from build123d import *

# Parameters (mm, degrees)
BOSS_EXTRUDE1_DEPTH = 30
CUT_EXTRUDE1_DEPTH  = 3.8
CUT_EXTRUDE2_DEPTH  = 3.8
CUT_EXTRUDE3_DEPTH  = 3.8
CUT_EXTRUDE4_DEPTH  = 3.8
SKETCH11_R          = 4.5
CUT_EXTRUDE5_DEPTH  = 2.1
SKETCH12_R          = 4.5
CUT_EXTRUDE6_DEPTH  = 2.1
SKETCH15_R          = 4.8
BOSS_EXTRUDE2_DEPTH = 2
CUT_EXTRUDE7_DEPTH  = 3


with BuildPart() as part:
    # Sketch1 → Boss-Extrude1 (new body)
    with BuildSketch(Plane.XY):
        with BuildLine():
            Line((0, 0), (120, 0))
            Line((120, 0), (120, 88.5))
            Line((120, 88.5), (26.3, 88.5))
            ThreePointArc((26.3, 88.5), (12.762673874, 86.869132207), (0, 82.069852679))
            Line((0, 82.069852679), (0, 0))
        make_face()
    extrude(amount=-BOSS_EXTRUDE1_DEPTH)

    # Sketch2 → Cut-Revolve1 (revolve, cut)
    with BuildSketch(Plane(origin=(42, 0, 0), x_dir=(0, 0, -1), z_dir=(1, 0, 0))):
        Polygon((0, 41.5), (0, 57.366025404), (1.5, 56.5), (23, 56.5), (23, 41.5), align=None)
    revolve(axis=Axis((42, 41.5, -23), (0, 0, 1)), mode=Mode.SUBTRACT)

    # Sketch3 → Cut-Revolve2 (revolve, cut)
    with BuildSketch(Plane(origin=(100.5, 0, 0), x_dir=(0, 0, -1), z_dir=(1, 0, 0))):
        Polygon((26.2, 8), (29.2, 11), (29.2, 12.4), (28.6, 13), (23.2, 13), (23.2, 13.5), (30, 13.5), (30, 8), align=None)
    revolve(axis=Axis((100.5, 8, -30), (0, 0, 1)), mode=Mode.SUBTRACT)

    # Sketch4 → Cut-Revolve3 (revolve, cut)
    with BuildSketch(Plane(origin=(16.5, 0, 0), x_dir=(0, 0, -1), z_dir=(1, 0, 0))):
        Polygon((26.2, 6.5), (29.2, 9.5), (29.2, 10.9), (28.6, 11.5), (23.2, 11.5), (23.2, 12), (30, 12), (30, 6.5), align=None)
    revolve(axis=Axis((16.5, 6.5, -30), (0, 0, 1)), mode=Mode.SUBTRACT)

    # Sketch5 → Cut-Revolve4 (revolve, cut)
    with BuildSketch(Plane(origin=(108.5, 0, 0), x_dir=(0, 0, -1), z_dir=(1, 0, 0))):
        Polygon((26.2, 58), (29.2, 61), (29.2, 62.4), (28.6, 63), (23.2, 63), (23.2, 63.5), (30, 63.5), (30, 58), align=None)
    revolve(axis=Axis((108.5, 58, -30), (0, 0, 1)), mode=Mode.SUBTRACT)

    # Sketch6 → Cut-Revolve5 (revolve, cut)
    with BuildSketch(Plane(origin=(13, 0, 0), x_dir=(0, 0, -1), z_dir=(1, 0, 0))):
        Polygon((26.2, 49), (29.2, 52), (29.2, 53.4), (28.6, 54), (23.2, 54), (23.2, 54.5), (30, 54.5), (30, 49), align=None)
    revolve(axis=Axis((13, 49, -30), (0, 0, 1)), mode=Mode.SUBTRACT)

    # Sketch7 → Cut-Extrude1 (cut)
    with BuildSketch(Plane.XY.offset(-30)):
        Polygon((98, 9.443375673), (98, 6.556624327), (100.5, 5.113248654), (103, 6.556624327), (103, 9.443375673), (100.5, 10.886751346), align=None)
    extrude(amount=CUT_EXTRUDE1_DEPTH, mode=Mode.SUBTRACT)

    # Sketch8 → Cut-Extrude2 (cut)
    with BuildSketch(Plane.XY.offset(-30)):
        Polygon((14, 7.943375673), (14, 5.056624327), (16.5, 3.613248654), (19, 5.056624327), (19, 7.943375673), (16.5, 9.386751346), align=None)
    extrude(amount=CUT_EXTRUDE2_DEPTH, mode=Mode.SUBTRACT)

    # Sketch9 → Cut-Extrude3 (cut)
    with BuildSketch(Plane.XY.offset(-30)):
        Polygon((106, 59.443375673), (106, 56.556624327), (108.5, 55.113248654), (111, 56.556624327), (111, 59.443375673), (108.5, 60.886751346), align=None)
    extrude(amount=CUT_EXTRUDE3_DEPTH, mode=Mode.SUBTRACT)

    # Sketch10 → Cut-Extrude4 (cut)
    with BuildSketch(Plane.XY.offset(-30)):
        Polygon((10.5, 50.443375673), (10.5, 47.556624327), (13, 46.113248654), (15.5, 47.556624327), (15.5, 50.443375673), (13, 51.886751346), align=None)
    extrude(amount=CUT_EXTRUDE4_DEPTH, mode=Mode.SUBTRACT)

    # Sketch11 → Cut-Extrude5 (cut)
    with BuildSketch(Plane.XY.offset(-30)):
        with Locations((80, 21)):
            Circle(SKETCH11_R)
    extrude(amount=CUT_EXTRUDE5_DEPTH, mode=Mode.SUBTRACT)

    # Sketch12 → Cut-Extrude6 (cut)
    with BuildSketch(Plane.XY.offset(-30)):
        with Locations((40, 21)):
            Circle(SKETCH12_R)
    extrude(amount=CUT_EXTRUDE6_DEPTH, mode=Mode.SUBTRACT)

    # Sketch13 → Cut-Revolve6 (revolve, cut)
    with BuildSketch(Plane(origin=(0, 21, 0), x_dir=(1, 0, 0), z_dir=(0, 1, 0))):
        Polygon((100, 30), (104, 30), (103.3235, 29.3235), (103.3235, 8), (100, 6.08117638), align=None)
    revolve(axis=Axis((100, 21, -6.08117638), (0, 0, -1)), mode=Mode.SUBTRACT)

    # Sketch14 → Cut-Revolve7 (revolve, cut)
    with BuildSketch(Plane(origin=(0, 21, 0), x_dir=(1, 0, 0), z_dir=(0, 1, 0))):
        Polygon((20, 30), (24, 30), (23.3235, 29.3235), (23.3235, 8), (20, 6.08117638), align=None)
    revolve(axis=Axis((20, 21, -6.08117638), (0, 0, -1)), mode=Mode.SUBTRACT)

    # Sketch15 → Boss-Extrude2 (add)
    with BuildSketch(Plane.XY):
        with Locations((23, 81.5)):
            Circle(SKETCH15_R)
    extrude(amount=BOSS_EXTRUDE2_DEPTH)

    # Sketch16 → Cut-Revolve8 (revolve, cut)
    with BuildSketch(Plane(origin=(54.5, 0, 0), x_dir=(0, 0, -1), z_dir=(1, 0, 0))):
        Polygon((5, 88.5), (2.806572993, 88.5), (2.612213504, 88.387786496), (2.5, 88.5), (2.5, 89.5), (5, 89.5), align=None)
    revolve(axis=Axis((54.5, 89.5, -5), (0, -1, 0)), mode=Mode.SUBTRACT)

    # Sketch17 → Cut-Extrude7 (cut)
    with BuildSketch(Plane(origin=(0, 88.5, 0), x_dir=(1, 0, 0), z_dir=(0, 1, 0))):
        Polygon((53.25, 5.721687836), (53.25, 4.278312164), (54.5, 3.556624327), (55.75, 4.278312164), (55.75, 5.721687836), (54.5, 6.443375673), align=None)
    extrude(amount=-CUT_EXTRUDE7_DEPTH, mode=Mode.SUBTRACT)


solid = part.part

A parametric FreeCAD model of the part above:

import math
import FreeCAD as App
import Part
import Sketcher
from FreeCAD import Vector
Q = App.Units.Quantity

doc = App.newDocument("Part")
params = doc.addObject("Spreadsheet::Sheet", "Params")
for row, (alias, value) in enumerate([
    ("sketch1_radius", "57 mm"),
    ("sketch1_width", "120 mm"),
    ("sketch1_width2", "93.7 mm"),
    ("sketch1_height", "88.5 mm"),
    ("pad1_length", "30 mm"),
    ("sketch2_width", "15 mm"),
    ("sketch2_height", "23 mm"),
    ("sketch2_height2", "21.5 mm"),
    ("groove_angle", "360 deg"),
    ("sketch3_width", "5.5 mm"),
    ("sketch3_width2", "0.5 mm"),
    ("sketch3_width3", "1.4 mm"),
    ("sketch3_height", "3.8 mm"),
    ("sketch3_height2", "6.8 mm"),
    ("groove2_angle", "360 deg"),
    ("sketch4_width", "5.5 mm"),
    ("sketch4_width2", "0.5 mm"),
    ("sketch4_width3", "1.4 mm"),
    ("sketch4_height", "3.8 mm"),
    ("sketch4_height2", "6.8 mm"),
    ("groove3_angle", "360 deg"),
    ("sketch5_width", "5.5 mm"),
    ("sketch5_width2", "0.5 mm"),
    ("sketch5_width3", "1.4 mm"),
    ("sketch5_height", "3.8 mm"),
    ("sketch5_height2", "6.8 mm"),
    ("groove4_angle", "360 deg"),
    ("sketch6_width", "5.5 mm"),
    ("sketch6_width2", "0.5 mm"),
    ("sketch6_width3", "1.4 mm"),
    ("sketch6_height", "3.8 mm"),
    ("sketch6_height2", "6.8 mm"),
    ("groove5_angle", "360 deg"),
    ("pocket1_length", "3.8 mm"),
    ("pocket2_length", "3.8 mm"),
    ("pocket3_length", "3.8 mm"),
    ("pocket4_length", "3.8 mm"),
    ("sketch11_diameter", "9 mm"),
    ("pocket5_length", "2.1 mm"),
    ("sketch12_diameter", "9 mm"),
    ("pocket6_length", "2.1 mm"),
    ("sketch13_width", "4 mm"),
    ("groove6_angle", "360 deg"),
    ("sketch14_width", "4 mm"),
    ("groove7_angle", "360 deg"),
    ("sketch15_diameter", "9.6 mm"),
    ("pad2_length", "2 mm"),
    ("sketch16_width", "1 mm"),
    ("sketch16_height", "2.5 mm"),
    ("groove8_angle", "360 deg"),
    ("pocket7_length", "3 mm"),
], start=1):
    params.set(f"A{row}", alias)
    params.set(f"B{row}", "=" + value)
    params.setAlias(f"B{row}", alias)

body = doc.addObject("PartDesign::Body", "Body")

# Sketch on XY plane
sketch1 = body.newObject("Sketcher::SketchObject", "Sketch")
sketch1.AttachmentSupport = (doc.getObject("XY_Plane"), [""])
sketch1.MapMode = "FlatFace"
sketch1.addGeometry([
    Part.LineSegment(Vector(0, 0, 0), Vector(120, 0, 0)),  # 0
    Part.LineSegment(Vector(120, 0, 0), Vector(120, 88, 0)),  # 1
    Part.LineSegment(Vector(120, 88, 0), Vector(26, 88, 0)),  # 2
    Part.ArcOfCircle(Part.Circle(Vector(26, 32, 0), Vector(0, 0, 1), 57), math.radians(90), math.radians(117)),  # 3
    Part.LineSegment(Vector(0, 82, 0), Vector(0, 0, 0)),  # 4
], False)
sketch1.addConstraint([
    Sketcher.Constraint("Coincident", 0, 2, 1, 1),
    Sketcher.Constraint("Coincident", 1, 2, 2, 1),
    Sketcher.Constraint("Tangent", 2, 2, 3, 1),
    Sketcher.Constraint("Coincident", 3, 2, 4, 1),
    Sketcher.Constraint("Coincident", 4, 2, 0, 1),
    Sketcher.Constraint("Horizontal", 0),
    Sketcher.Constraint("Vertical", 1),
    Sketcher.Constraint("Horizontal", 2),
    Sketcher.Constraint("Vertical", 4),
    Sketcher.Constraint("Coincident", 4, 2, -1, 1),
    Sketcher.Constraint("Radius", 3, Q("57 mm")),
    Sketcher.Constraint("DistanceX", 0, 1, 0, 2, Q("120 mm")),
    Sketcher.Constraint("DistanceX", 2, 2, 2, 1, Q("93.7 mm")),
    Sketcher.Constraint("DistanceY", 1, 1, 1, 2, Q("88.5 mm")),
])
sketch1.setExpression("Constraints[10]", "Params.sketch1_radius")
sketch1.setExpression("Constraints[11]", "Params.sketch1_width")
sketch1.setExpression("Constraints[12]", "Params.sketch1_width2")
sketch1.setExpression("Constraints[13]", "Params.sketch1_height")
pad1 = body.newObject("PartDesign::Pad", "Pad")
pad1.Profile = sketch1
pad1.setExpression("Length", "Params.pad1_length")
pad1.Reversed = True

# Sketch on YZ plane
sketch2 = body.newObject("Sketcher::SketchObject", "Sketch001")
sketch2.AttachmentSupport = (doc.getObject("YZ_Plane"), [""])
sketch2.MapMode = "FlatFace"
sketch2.AttachmentOffset = App.Placement(Vector(0, 0, 42), App.Rotation())
sketch2.addGeometry([
    Part.LineSegment(Vector(57.4, 0, 0), Vector(41.5, 0, 0)),  # 0
    Part.LineSegment(Vector(41.5, 0, 0), Vector(41.5, -23, 0)),  # 1
    Part.LineSegment(Vector(41.5, -23, 0), Vector(56.5, -23, 0)),  # 2
    Part.LineSegment(Vector(56.5, -23, 0), Vector(56.5, -1.5, 0)),  # 3
    Part.LineSegment(Vector(56.5, -1.5, 0), Vector(57.4, 0, 0)),  # 4
], False)
sketch2.addGeometry(Part.LineSegment(Vector(41.5, -23, 0), Vector(41.5, 0, 0)), True)  # axis
sketch2.addConstraint([
    Sketcher.Constraint("Coincident", 0, 2, 1, 1),
    Sketcher.Constraint("Coincident", 1, 2, 2, 1),
    Sketcher.Constraint("Coincident", 2, 2, 3, 1),
    Sketcher.Constraint("Coincident", 3, 2, 4, 1),
    Sketcher.Constraint("Coincident", 4, 2, 0, 1),
    Sketcher.Constraint("Horizontal", 0),
    Sketcher.Constraint("Vertical", 1),
    Sketcher.Constraint("Horizontal", 2),
    Sketcher.Constraint("Vertical", 3),
    Sketcher.Constraint("Vertical", 5),
    Sketcher.Constraint("Coincident", 5, 1, 1, 2),
    Sketcher.Constraint("PointOnObject", 0, 2, -1),
    Sketcher.Constraint("PointOnObject", 5, 2, -1),
    Sketcher.Constraint("DistanceX", 2, 1, 2, 2, Q("15 mm")),
    Sketcher.Constraint("DistanceY", 1, 2, 1, 1, Q("23 mm")),
    Sketcher.Constraint("Angle", 4, Q("60 deg")),
    Sketcher.Constraint("DistanceY", 3, 1, 3, 2, Q("21.5 mm")),
    Sketcher.Constraint("DistanceX", -1, 1, 0, 2, Q("41.5 mm")),
])
sketch2.setExpression("Constraints[13]", "Params.sketch2_width")
sketch2.setExpression("Constraints[14]", "Params.sketch2_height")
sketch2.setExpression("Constraints[16]", "Params.sketch2_height2")
groove = body.newObject("PartDesign::Groove", "Groove")
groove.Profile = sketch2
groove.ReferenceAxis = (sketch2, ["Axis0"])
groove.setExpression("Angle", "Params.groove_angle")

# Sketch on YZ plane
sketch3 = body.newObject("Sketcher::SketchObject", "Sketch002")
sketch3.AttachmentSupport = (doc.getObject("YZ_Plane"), [""])
sketch3.MapMode = "FlatFace"
sketch3.AttachmentOffset = App.Placement(Vector(0, 0, 100.5), App.Rotation())
sketch3.addGeometry([
    Part.LineSegment(Vector(11, -29.2, 0), Vector(8, -26.2, 0)),  # 0
    Part.LineSegment(Vector(8, -26.2, 0), Vector(8, -30, 0)),  # 1
    Part.LineSegment(Vector(8, -30, 0), Vector(13.5, -30, 0)),  # 2
    Part.LineSegment(Vector(13.5, -30, 0), Vector(13.5, -23.2, 0)),  # 3
    Part.LineSegment(Vector(13.5, -23.2, 0), Vector(13, -23.2, 0)),  # 4
    Part.LineSegment(Vector(13, -23.2, 0), Vector(13, -28.6, 0)),  # 5
    Part.LineSegment(Vector(13, -28.6, 0), Vector(12.4, -29.2, 0)),  # 6
    Part.LineSegment(Vector(12.4, -29.2, 0), Vector(11, -29.2, 0)),  # 7
], False)
sketch3.addGeometry(Part.LineSegment(Vector(8, -30, 0), Vector(8, -23.2, 0)), True)  # axis
sketch3.addConstraint([
    Sketcher.Constraint("Coincident", 0, 2, 1, 1),
    Sketcher.Constraint("Coincident", 1, 2, 2, 1),
    Sketcher.Constraint("Coincident", 2, 2, 3, 1),
    Sketcher.Constraint("Coincident", 3, 2, 4, 1),
    Sketcher.Constraint("Coincident", 4, 2, 5, 1),
    Sketcher.Constraint("Coincident", 5, 2, 6, 1),
    Sketcher.Constraint("Coincident", 6, 2, 7, 1),
    Sketcher.Constraint("Coincident", 7, 2, 0, 1),
    Sketcher.Constraint("Vertical", 1),
    Sketcher.Constraint("Horizontal", 2),
    Sketcher.Constraint("Vertical", 3),
    Sketcher.Constraint("Horizontal", 4),
    Sketcher.Constraint("Vertical", 5),
    Sketcher.Constraint("Horizontal", 7),
    Sketcher.Constraint("Vertical", 8),
    Sketcher.Constraint("Coincident", 8, 1, 1, 2),
    Sketcher.Constraint("Perpendicular", 0, 6),
    Sketcher.Constraint("Horizontal", 4, 2, 8, 2),
    Sketcher.Constraint("Angle", 0, Q("135 deg")),
    Sketcher.Constraint("DistanceX", 2, 1, 2, 2, Q("5.5 mm")),
    Sketcher.Constraint("DistanceX", 4, 2, 4, 1, Q("0.5 mm")),
    Sketcher.Constraint("DistanceX", 7, 2, 7, 1, Q("1.4 mm")),
    Sketcher.Constraint("DistanceY", 1, 2, 1, 1, Q("3.8 mm")),
    Sketcher.Constraint("DistanceY", 3, 1, 3, 2, Q("6.8 mm")),
    Sketcher.Constraint("DistanceY", 5, 2, 5, 1, Q("5.4 mm")),
    Sketcher.Constraint("DistanceX", -1, 1, 0, 2, Q("8 mm")),
    Sketcher.Constraint("DistanceY", 1, 2, -1, 1, Q("30 mm")),
])
sketch3.setExpression("Constraints[19]", "Params.sketch3_width")
sketch3.setExpression("Constraints[20]", "Params.sketch3_width2")
sketch3.setExpression("Constraints[21]", "Params.sketch3_width3")
sketch3.setExpression("Constraints[22]", "Params.sketch3_height")
sketch3.setExpression("Constraints[23]", "Params.sketch3_height2")
groove2 = body.newObject("PartDesign::Groove", "Groove001")
groove2.Profile = sketch3
groove2.ReferenceAxis = (sketch3, ["Axis0"])
groove2.setExpression("Angle", "Params.groove2_angle")

# Sketch on YZ plane
sketch4 = body.newObject("Sketcher::SketchObject", "Sketch003")
sketch4.AttachmentSupport = (doc.getObject("YZ_Plane"), [""])
sketch4.MapMode = "FlatFace"
sketch4.AttachmentOffset = App.Placement(Vector(0, 0, 16.5), App.Rotation())
sketch4.addGeometry([
    Part.LineSegment(Vector(9.5, -29.2, 0), Vector(6.5, -26.2, 0)),  # 0
    Part.LineSegment(Vector(6.5, -26.2, 0), Vector(6.5, -30, 0)),  # 1
    Part.LineSegment(Vector(6.5, -30, 0), Vector(12, -30, 0)),  # 2
    Part.LineSegment(Vector(12, -30, 0), Vector(12, -23.2, 0)),  # 3
    Part.LineSegment(Vector(12, -23.2, 0), Vector(11.5, -23.2, 0)),  # 4
    Part.LineSegment(Vector(11.5, -23.2, 0), Vector(11.5, -28.6, 0)),  # 5
    Part.LineSegment(Vector(11.5, -28.6, 0), Vector(10.9, -29.2, 0)),  # 6
    Part.LineSegment(Vector(10.9, -29.2, 0), Vector(9.5, -29.2, 0)),  # 7
], False)
sketch4.addGeometry(Part.LineSegment(Vector(6.5, -30, 0), Vector(6.5, -23.2, 0)), True)  # axis
sketch4.addConstraint([
    Sketcher.Constraint("Coincident", 0, 2, 1, 1),
    Sketcher.Constraint("Coincident", 1, 2, 2, 1),
    Sketcher.Constraint("Coincident", 2, 2, 3, 1),
    Sketcher.Constraint("Coincident", 3, 2, 4, 1),
    Sketcher.Constraint("Coincident", 4, 2, 5, 1),
    Sketcher.Constraint("Coincident", 5, 2, 6, 1),
    Sketcher.Constraint("Coincident", 6, 2, 7, 1),
    Sketcher.Constraint("Coincident", 7, 2, 0, 1),
    Sketcher.Constraint("Vertical", 1),
    Sketcher.Constraint("Horizontal", 2),
    Sketcher.Constraint("Vertical", 3),
    Sketcher.Constraint("Horizontal", 4),
    Sketcher.Constraint("Vertical", 5),
    Sketcher.Constraint("Horizontal", 7),
    Sketcher.Constraint("Vertical", 8),
    Sketcher.Constraint("Coincident", 8, 1, 1, 2),
    Sketcher.Constraint("Perpendicular", 0, 6),
    Sketcher.Constraint("Horizontal", 4, 2, 8, 2),
    Sketcher.Constraint("Angle", 0, Q("135 deg")),
    Sketcher.Constraint("DistanceX", 2, 1, 2, 2, Q("5.5 mm")),
    Sketcher.Constraint("DistanceX", 4, 2, 4, 1, Q("0.5 mm")),
    Sketcher.Constraint("DistanceX", 7, 2, 7, 1, Q("1.4 mm")),
    Sketcher.Constraint("DistanceY", 1, 2, 1, 1, Q("3.8 mm")),
    Sketcher.Constraint("DistanceY", 3, 1, 3, 2, Q("6.8 mm")),
    Sketcher.Constraint("DistanceY", 5, 2, 5, 1, Q("5.4 mm")),
    Sketcher.Constraint("DistanceY", 1, 2, -1, 1, Q("30 mm")),
    Sketcher.Constraint("DistanceX", -1, 1, 2, 2, Q("12 mm")),
])
sketch4.setExpression("Constraints[19]", "Params.sketch4_width")
sketch4.setExpression("Constraints[20]", "Params.sketch4_width2")
sketch4.setExpression("Constraints[21]", "Params.sketch4_width3")
sketch4.setExpression("Constraints[22]", "Params.sketch4_height")
sketch4.setExpression("Constraints[23]", "Params.sketch4_height2")
groove3 = body.newObject("PartDesign::Groove", "Groove002")
groove3.Profile = sketch4
groove3.ReferenceAxis = (sketch4, ["Axis0"])
groove3.setExpression("Angle", "Params.groove3_angle")

# Sketch on YZ plane
sketch5 = body.newObject("Sketcher::SketchObject", "Sketch004")
sketch5.AttachmentSupport = (doc.getObject("YZ_Plane"), [""])
sketch5.MapMode = "FlatFace"
sketch5.AttachmentOffset = App.Placement(Vector(0, 0, 108.5), App.Rotation())
sketch5.addGeometry([
    Part.LineSegment(Vector(61, -29.2, 0), Vector(58, -26.2, 0)),  # 0
    Part.LineSegment(Vector(58, -26.2, 0), Vector(58, -30, 0)),  # 1
    Part.LineSegment(Vector(58, -30, 0), Vector(63.5, -30, 0)),  # 2
    Part.LineSegment(Vector(63.5, -30, 0), Vector(63.5, -23.2, 0)),  # 3
    Part.LineSegment(Vector(63.5, -23.2, 0), Vector(63, -23.2, 0)),  # 4
    Part.LineSegment(Vector(63, -23.2, 0), Vector(63, -28.6, 0)),  # 5
    Part.LineSegment(Vector(63, -28.6, 0), Vector(62.4, -29.2, 0)),  # 6
    Part.LineSegment(Vector(62.4, -29.2, 0), Vector(61, -29.2, 0)),  # 7
], False)
sketch5.addGeometry(Part.LineSegment(Vector(58, -30, 0), Vector(58, -23.2, 0)), True)  # axis
sketch5.addConstraint([
    Sketcher.Constraint("Coincident", 0, 2, 1, 1),
    Sketcher.Constraint("Coincident", 1, 2, 2, 1),
    Sketcher.Constraint("Coincident", 2, 2, 3, 1),
    Sketcher.Constraint("Coincident", 3, 2, 4, 1),
    Sketcher.Constraint("Coincident", 4, 2, 5, 1),
    Sketcher.Constraint("Coincident", 5, 2, 6, 1),
    Sketcher.Constraint("Coincident", 6, 2, 7, 1),
    Sketcher.Constraint("Coincident", 7, 2, 0, 1),
    Sketcher.Constraint("Vertical", 1),
    Sketcher.Constraint("Horizontal", 2),
    Sketcher.Constraint("Vertical", 3),
    Sketcher.Constraint("Horizontal", 4),
    Sketcher.Constraint("Vertical", 5),
    Sketcher.Constraint("Horizontal", 7),
    Sketcher.Constraint("Vertical", 8),
    Sketcher.Constraint("Coincident", 8, 1, 1, 2),
    Sketcher.Constraint("Perpendicular", 0, 6),
    Sketcher.Constraint("Horizontal", 4, 2, 8, 2),
    Sketcher.Constraint("Angle", 0, Q("135 deg")),
    Sketcher.Constraint("DistanceX", 2, 1, 2, 2, Q("5.5 mm")),
    Sketcher.Constraint("DistanceX", 4, 2, 4, 1, Q("0.5 mm")),
    Sketcher.Constraint("DistanceX", 7, 2, 7, 1, Q("1.4 mm")),
    Sketcher.Constraint("DistanceY", 1, 2, 1, 1, Q("3.8 mm")),
    Sketcher.Constraint("DistanceY", 3, 1, 3, 2, Q("6.8 mm")),
    Sketcher.Constraint("DistanceY", 5, 2, 5, 1, Q("5.4 mm")),
    Sketcher.Constraint("DistanceX", -1, 1, 0, 2, Q("58 mm")),
    Sketcher.Constraint("DistanceY", 1, 2, -1, 1, Q("30 mm")),
])
sketch5.setExpression("Constraints[19]", "Params.sketch5_width")
sketch5.setExpression("Constraints[20]", "Params.sketch5_width2")
sketch5.setExpression("Constraints[21]", "Params.sketch5_width3")
sketch5.setExpression("Constraints[22]", "Params.sketch5_height")
sketch5.setExpression("Constraints[23]", "Params.sketch5_height2")
groove4 = body.newObject("PartDesign::Groove", "Groove003")
groove4.Profile = sketch5
groove4.ReferenceAxis = (sketch5, ["Axis0"])
groove4.setExpression("Angle", "Params.groove4_angle")

# Sketch on YZ plane
sketch6 = body.newObject("Sketcher::SketchObject", "Sketch005")
sketch6.AttachmentSupport = (doc.getObject("YZ_Plane"), [""])
sketch6.MapMode = "FlatFace"
sketch6.AttachmentOffset = App.Placement(Vector(0, 0, 13), App.Rotation())
sketch6.addGeometry([
    Part.LineSegment(Vector(52, -29.2, 0), Vector(49, -26.2, 0)),  # 0
    Part.LineSegment(Vector(49, -26.2, 0), Vector(49, -30, 0)),  # 1
    Part.LineSegment(Vector(49, -30, 0), Vector(54.5, -30, 0)),  # 2
    Part.LineSegment(Vector(54.5, -30, 0), Vector(54.5, -23.2, 0)),  # 3
    Part.LineSegment(Vector(54.5, -23.2, 0), Vector(54, -23.2, 0)),  # 4
    Part.LineSegment(Vector(54, -23.2, 0), Vector(54, -28.6, 0)),  # 5
    Part.LineSegment(Vector(54, -28.6, 0), Vector(53.4, -29.2, 0)),  # 6
    Part.LineSegment(Vector(53.4, -29.2, 0), Vector(52, -29.2, 0)),  # 7
], False)
sketch6.addGeometry(Part.LineSegment(Vector(49, -30, 0), Vector(49, -23.2, 0)), True)  # axis
sketch6.addConstraint([
    Sketcher.Constraint("Coincident", 0, 2, 1, 1),
    Sketcher.Constraint("Coincident", 1, 2, 2, 1),
    Sketcher.Constraint("Coincident", 2, 2, 3, 1),
    Sketcher.Constraint("Coincident", 3, 2, 4, 1),
    Sketcher.Constraint("Coincident", 4, 2, 5, 1),
    Sketcher.Constraint("Coincident", 5, 2, 6, 1),
    Sketcher.Constraint("Coincident", 6, 2, 7, 1),
    Sketcher.Constraint("Coincident", 7, 2, 0, 1),
    Sketcher.Constraint("Vertical", 1),
    Sketcher.Constraint("Horizontal", 2),
    Sketcher.Constraint("Vertical", 3),
    Sketcher.Constraint("Horizontal", 4),
    Sketcher.Constraint("Vertical", 5),
    Sketcher.Constraint("Horizontal", 7),
    Sketcher.Constraint("Vertical", 8),
    Sketcher.Constraint("Coincident", 8, 1, 1, 2),
    Sketcher.Constraint("Perpendicular", 0, 6),
    Sketcher.Constraint("Horizontal", 4, 2, 8, 2),
    Sketcher.Constraint("Angle", 0, Q("135 deg")),
    Sketcher.Constraint("DistanceX", 2, 1, 2, 2, Q("5.5 mm")),
    Sketcher.Constraint("DistanceX", 4, 2, 4, 1, Q("0.5 mm")),
    Sketcher.Constraint("DistanceX", 7, 2, 7, 1, Q("1.4 mm")),
    Sketcher.Constraint("DistanceY", 1, 2, 1, 1, Q("3.8 mm")),
    Sketcher.Constraint("DistanceY", 3, 1, 3, 2, Q("6.8 mm")),
    Sketcher.Constraint("DistanceY", 5, 2, 5, 1, Q("5.4 mm")),
    Sketcher.Constraint("DistanceX", -1, 1, 0, 2, Q("49 mm")),
    Sketcher.Constraint("DistanceY", 1, 2, -1, 1, Q("30 mm")),
])
sketch6.setExpression("Constraints[19]", "Params.sketch6_width")
sketch6.setExpression("Constraints[20]", "Params.sketch6_width2")
sketch6.setExpression("Constraints[21]", "Params.sketch6_width3")
sketch6.setExpression("Constraints[22]", "Params.sketch6_height")
sketch6.setExpression("Constraints[23]", "Params.sketch6_height2")
groove5 = body.newObject("PartDesign::Groove", "Groove004")
groove5.Profile = sketch6
groove5.ReferenceAxis = (sketch6, ["Axis0"])
groove5.setExpression("Angle", "Params.groove5_angle")

# Sketch on XY plane
sketch7 = body.newObject("Sketcher::SketchObject", "Sketch006")
sketch7.AttachmentSupport = (doc.getObject("XY_Plane"), [""])
sketch7.MapMode = "FlatFace"
sketch7.AttachmentOffset = App.Placement(Vector(0, 0, -30), App.Rotation())
sketch7.addGeometry([
    Part.LineSegment(Vector(98, 9.4, 0), Vector(98, 6.6, 0)),  # 0
    Part.LineSegment(Vector(98, 6.6, 0), Vector(100.5, 5.1, 0)),  # 1
    Part.LineSegment(Vector(100.5, 5.1, 0), Vector(103, 6.6, 0)),  # 2
    Part.LineSegment(Vector(103, 6.6, 0), Vector(103, 9.4, 0)),  # 3
    Part.LineSegment(Vector(103, 9.4, 0), Vector(100.5, 10.9, 0)),  # 4
    Part.LineSegment(Vector(100.5, 10.9, 0), Vector(98, 9.4, 0)),  # 5
], False)
sketch7.addConstraint([
    Sketcher.Constraint("Coincident", 0, 2, 1, 1),
    Sketcher.Constraint("Coincident", 1, 2, 2, 1),
    Sketcher.Constraint("Coincident", 2, 2, 3, 1),
    Sketcher.Constraint("Coincident", 3, 2, 4, 1),
    Sketcher.Constraint("Coincident", 4, 2, 5, 1),
    Sketcher.Constraint("Coincident", 5, 2, 0, 1),
    Sketcher.Constraint("Vertical", 0),
    Sketcher.Constraint("Vertical", 3),
    Sketcher.Constraint("Parallel", 1, 4),
    Sketcher.Constraint("Parallel", 2, 5),
    Sketcher.Constraint("Horizontal", 0, 2, 2, 2),
    Sketcher.Constraint("Horizontal", 3, 2, 5, 2),
    Sketcher.Constraint("Vertical", 1, 2, 4, 2),
    Sketcher.Constraint("Angle", 1, Q("-30 deg")),
    Sketcher.Constraint("DistanceX", -1, 1, 0, 2, Q("98 mm")),
    Sketcher.Constraint("DistanceX", -1, 1, 2, 2, Q("103 mm")),
    Sketcher.Constraint("DistanceY", 0, 2, 0, 1, Q("2.886751 mm")),
    Sketcher.Constraint("DistanceY", -1, 1, 1, 2, Q("5.113249 mm")),
])
pocket1 = body.newObject("PartDesign::Pocket", "Pocket")
pocket1.Profile = sketch7
pocket1.setExpression("Length", "Params.pocket1_length")
pocket1.Reversed = True

# Sketch on XY plane
sketch8 = body.newObject("Sketcher::SketchObject", "Sketch007")
sketch8.AttachmentSupport = (doc.getObject("XY_Plane"), [""])
sketch8.MapMode = "FlatFace"
sketch8.AttachmentOffset = App.Placement(Vector(0, 0, -30), App.Rotation())
sketch8.addGeometry([
    Part.LineSegment(Vector(14, 7.9, 0), Vector(14, 5.1, 0)),  # 0
    Part.LineSegment(Vector(14, 5.1, 0), Vector(16.5, 3.6, 0)),  # 1
    Part.LineSegment(Vector(16.5, 3.6, 0), Vector(19, 5.1, 0)),  # 2
    Part.LineSegment(Vector(19, 5.1, 0), Vector(19, 7.9, 0)),  # 3
    Part.LineSegment(Vector(19, 7.9, 0), Vector(16.5, 9.4, 0)),  # 4
    Part.LineSegment(Vector(16.5, 9.4, 0), Vector(14, 7.9, 0)),  # 5
], False)
sketch8.addConstraint([
    Sketcher.Constraint("Coincident", 0, 2, 1, 1),
    Sketcher.Constraint("Coincident", 1, 2, 2, 1),
    Sketcher.Constraint("Coincident", 2, 2, 3, 1),
    Sketcher.Constraint("Coincident", 3, 2, 4, 1),
    Sketcher.Constraint("Coincident", 4, 2, 5, 1),
    Sketcher.Constraint("Coincident", 5, 2, 0, 1),
    Sketcher.Constraint("Vertical", 0),
    Sketcher.Constraint("Vertical", 3),
    Sketcher.Constraint("Parallel", 1, 4),
    Sketcher.Constraint("Parallel", 2, 5),
    Sketcher.Constraint("Horizontal", 0, 2, 2, 2),
    Sketcher.Constraint("Horizontal", 3, 2, 5, 2),
    Sketcher.Constraint("Vertical", 1, 2, 4, 2),
    Sketcher.Constraint("Angle", 1, Q("-30 deg")),
    Sketcher.Constraint("DistanceX", -1, 1, 0, 2, Q("14 mm")),
    Sketcher.Constraint("DistanceX", -1, 1, 2, 2, Q("19 mm")),
    Sketcher.Constraint("DistanceY", 0, 2, 0, 1, Q("2.886751 mm")),
    Sketcher.Constraint("DistanceY", -1, 1, 1, 2, Q("3.613249 mm")),
])
pocket2 = body.newObject("PartDesign::Pocket", "Pocket001")
pocket2.Profile = sketch8
pocket2.setExpression("Length", "Params.pocket2_length")
pocket2.Reversed = True

# Sketch on XY plane
sketch9 = body.newObject("Sketcher::SketchObject", "Sketch008")
sketch9.AttachmentSupport = (doc.getObject("XY_Plane"), [""])
sketch9.MapMode = "FlatFace"
sketch9.AttachmentOffset = App.Placement(Vector(0, 0, -30), App.Rotation())
sketch9.addGeometry([
    Part.LineSegment(Vector(106, 59.4, 0), Vector(106, 56.6, 0)),  # 0
    Part.LineSegment(Vector(106, 56.6, 0), Vector(108.5, 55.1, 0)),  # 1
    Part.LineSegment(Vector(108.5, 55.1, 0), Vector(111, 56.6, 0)),  # 2
    Part.LineSegment(Vector(111, 56.6, 0), Vector(111, 59.4, 0)),  # 3
    Part.LineSegment(Vector(111, 59.4, 0), Vector(108.5, 60.9, 0)),  # 4
    Part.LineSegment(Vector(108.5, 60.9, 0), Vector(106, 59.4, 0)),  # 5
], False)
sketch9.addConstraint([
    Sketcher.Constraint("Coincident", 0, 2, 1, 1),
    Sketcher.Constraint("Coincident", 1, 2, 2, 1),
    Sketcher.Constraint("Coincident", 2, 2, 3, 1),
    Sketcher.Constraint("Coincident", 3, 2, 4, 1),
    Sketcher.Constraint("Coincident", 4, 2, 5, 1),
    Sketcher.Constraint("Coincident", 5, 2, 0, 1),
    Sketcher.Constraint("Vertical", 0),
    Sketcher.Constraint("Vertical", 3),
    Sketcher.Constraint("Parallel", 1, 4),
    Sketcher.Constraint("Parallel", 2, 5),
    Sketcher.Constraint("Horizontal", 0, 2, 2, 2),
    Sketcher.Constraint("Horizontal", 3, 2, 5, 2),
    Sketcher.Constraint("Vertical", 1, 2, 4, 2),
    Sketcher.Constraint("Angle", 1, Q("-30 deg")),
    Sketcher.Constraint("DistanceX", -1, 1, 0, 2, Q("106 mm")),
    Sketcher.Constraint("DistanceX", -1, 1, 2, 2, Q("111 mm")),
    Sketcher.Constraint("DistanceY", 0, 2, 0, 1, Q("2.886751 mm")),
    Sketcher.Constraint("DistanceY", -1, 1, 1, 2, Q("55.113249 mm")),
])
pocket3 = body.newObject("PartDesign::Pocket", "Pocket002")
pocket3.Profile = sketch9
pocket3.setExpression("Length", "Params.pocket3_length")
pocket3.Reversed = True

# Sketch on XY plane
sketch10 = body.newObject("Sketcher::SketchObject", "Sketch009")
sketch10.AttachmentSupport = (doc.getObject("XY_Plane"), [""])
sketch10.MapMode = "FlatFace"
sketch10.AttachmentOffset = App.Placement(Vector(0, 0, -30), App.Rotation())
sketch10.addGeometry([
    Part.LineSegment(Vector(10.5, 50.4, 0), Vector(10.5, 47.6, 0)),  # 0
    Part.LineSegment(Vector(10.5, 47.6, 0), Vector(13, 46.1, 0)),  # 1
    Part.LineSegment(Vector(13, 46.1, 0), Vector(15.5, 47.6, 0)),  # 2
    Part.LineSegment(Vector(15.5, 47.6, 0), Vector(15.5, 50.4, 0)),  # 3
    Part.LineSegment(Vector(15.5, 50.4, 0), Vector(13, 51.9, 0)),  # 4
    Part.LineSegment(Vector(13, 51.9, 0), Vector(10.5, 50.4, 0)),  # 5
], False)
sketch10.addConstraint([
    Sketcher.Constraint("Coincident", 0, 2, 1, 1),
    Sketcher.Constraint("Coincident", 1, 2, 2, 1),
    Sketcher.Constraint("Coincident", 2, 2, 3, 1),
    Sketcher.Constraint("Coincident", 3, 2, 4, 1),
    Sketcher.Constraint("Coincident", 4, 2, 5, 1),
    Sketcher.Constraint("Coincident", 5, 2, 0, 1),
    Sketcher.Constraint("Vertical", 0),
    Sketcher.Constraint("Vertical", 3),
    Sketcher.Constraint("Parallel", 1, 4),
    Sketcher.Constraint("Parallel", 2, 5),
    Sketcher.Constraint("Horizontal", 0, 2, 2, 2),
    Sketcher.Constraint("Horizontal", 3, 2, 5, 2),
    Sketcher.Constraint("Vertical", 1, 2, 4, 2),
    Sketcher.Constraint("Angle", 1, Q("-30 deg")),
    Sketcher.Constraint("DistanceX", -1, 1, 1, 2, Q("13 mm")),
    Sketcher.Constraint("DistanceX", 0, 2, 2, 2, Q("5 mm")),
    Sketcher.Constraint("DistanceY", 0, 2, 0, 1, Q("2.886751 mm")),
    Sketcher.Constraint("DistanceY", -1, 1, 1, 2, Q("46.113249 mm")),
])
pocket4 = body.newObject("PartDesign::Pocket", "Pocket003")
pocket4.Profile = sketch10
pocket4.setExpression("Length", "Params.pocket4_length")
pocket4.Reversed = True

# Sketch on XY plane
sketch11 = body.newObject("Sketcher::SketchObject", "Sketch010")
sketch11.AttachmentSupport = (doc.getObject("XY_Plane"), [""])
sketch11.MapMode = "FlatFace"
sketch11.AttachmentOffset = App.Placement(Vector(0, 0, -30), App.Rotation())
sketch11.addGeometry(Part.Circle(Vector(80, 21, 0), Vector(0, 0, 1), 4.5), False)
sketch11.addConstraint([
    Sketcher.Constraint("Diameter", 0, Q("9 mm")),
    Sketcher.Constraint("DistanceX", -1, 1, 0, 3, Q("80 mm")),
    Sketcher.Constraint("DistanceY", -1, 1, 0, 3, Q("21 mm")),
])
sketch11.setExpression("Constraints[0]", "Params.sketch11_diameter")
pocket5 = body.newObject("PartDesign::Pocket", "Pocket004")
pocket5.Profile = sketch11
pocket5.setExpression("Length", "Params.pocket5_length")
pocket5.Reversed = True

# Sketch on XY plane
sketch12 = body.newObject("Sketcher::SketchObject", "Sketch011")
sketch12.AttachmentSupport = (doc.getObject("XY_Plane"), [""])
sketch12.MapMode = "FlatFace"
sketch12.AttachmentOffset = App.Placement(Vector(0, 0, -30), App.Rotation())
sketch12.addGeometry(Part.Circle(Vector(40, 21, 0), Vector(0, 0, 1), 4.5), False)
sketch12.addConstraint([
    Sketcher.Constraint("Diameter", 0, Q("9 mm")),
    Sketcher.Constraint("DistanceX", -1, 1, 0, 3, Q("40 mm")),
    Sketcher.Constraint("DistanceY", -1, 1, 0, 3, Q("21 mm")),
])
sketch12.setExpression("Constraints[0]", "Params.sketch12_diameter")
pocket6 = body.newObject("PartDesign::Pocket", "Pocket005")
pocket6.Profile = sketch12
pocket6.setExpression("Length", "Params.pocket6_length")
pocket6.Reversed = True

# Sketch on XZ plane
sketch13 = body.newObject("Sketcher::SketchObject", "Sketch012")
sketch13.AttachmentSupport = (doc.getObject("XZ_Plane"), [""])
sketch13.MapMode = "FlatFace"
sketch13.AttachmentOffset = App.Placement(Vector(0, 0, -21), App.Rotation())
sketch13.addGeometry([
    Part.LineSegment(Vector(104, -30, 0), Vector(100, -30, 0)),  # 0
    Part.LineSegment(Vector(100, -30, 0), Vector(100, -6.1, 0)),  # 1
    Part.LineSegment(Vector(100, -6.1, 0), Vector(103.3, -8, 0)),  # 2
    Part.LineSegment(Vector(103.3, -8, 0), Vector(103.3, -29.3, 0)),  # 3
    Part.LineSegment(Vector(103.3, -29.3, 0), Vector(104, -30, 0)),  # 4
], False)
sketch13.addGeometry(Part.LineSegment(Vector(100, -6.1, 0), Vector(100, -30, 0)), True)  # axis
sketch13.addConstraint([
    Sketcher.Constraint("Coincident", 0, 2, 1, 1),
    Sketcher.Constraint("Coincident", 1, 2, 2, 1),
    Sketcher.Constraint("Coincident", 2, 2, 3, 1),
    Sketcher.Constraint("Coincident", 3, 2, 4, 1),
    Sketcher.Constraint("Coincident", 4, 2, 0, 1),
    Sketcher.Constraint("Horizontal", 0),
    Sketcher.Constraint("Vertical", 1),
    Sketcher.Constraint("Vertical", 3),
    Sketcher.Constraint("Vertical", 5),
    Sketcher.Constraint("Coincident", 5, 1, 1, 2),
    Sketcher.Constraint("Horizontal", 4, 2, 5, 2),
    Sketcher.Constraint("DistanceX", 0, 2, 0, 1, Q("4 mm")),
    Sketcher.Constraint("Angle", 2, Q("-30 deg")),
    Sketcher.Constraint("Angle", 4, Q("-45 deg")),
    Sketcher.Constraint("DistanceX", -1, 1, 0, 2, Q("100 mm")),
    Sketcher.Constraint("DistanceY", 0, 2, -1, 1, Q("30 mm")),
    Sketcher.Constraint("DistanceY", 2, 2, -1, 1, Q("8 mm")),
    Sketcher.Constraint("DistanceY", 3, 2, 3, 1, Q("21.3235 mm")),
])
sketch13.setExpression("Constraints[11]", "Params.sketch13_width")
groove6 = body.newObject("PartDesign::Groove", "Groove005")
groove6.Profile = sketch13
groove6.ReferenceAxis = (sketch13, ["Axis0"])
groove6.setExpression("Angle", "Params.groove6_angle")

# Sketch on XZ plane
sketch14 = body.newObject("Sketcher::SketchObject", "Sketch013")
sketch14.AttachmentSupport = (doc.getObject("XZ_Plane"), [""])
sketch14.MapMode = "FlatFace"
sketch14.AttachmentOffset = App.Placement(Vector(0, 0, -21), App.Rotation())
sketch14.addGeometry([
    Part.LineSegment(Vector(24, -30, 0), Vector(20, -30, 0)),  # 0
    Part.LineSegment(Vector(20, -30, 0), Vector(20, -6.1, 0)),  # 1
    Part.LineSegment(Vector(20, -6.1, 0), Vector(23.3, -8, 0)),  # 2
    Part.LineSegment(Vector(23.3, -8, 0), Vector(23.3, -29.3, 0)),  # 3
    Part.LineSegment(Vector(23.3, -29.3, 0), Vector(24, -30, 0)),  # 4
], False)
sketch14.addGeometry(Part.LineSegment(Vector(20, -6.1, 0), Vector(20, -30, 0)), True)  # axis
sketch14.addConstraint([
    Sketcher.Constraint("Coincident", 0, 2, 1, 1),
    Sketcher.Constraint("Coincident", 1, 2, 2, 1),
    Sketcher.Constraint("Coincident", 2, 2, 3, 1),
    Sketcher.Constraint("Coincident", 3, 2, 4, 1),
    Sketcher.Constraint("Coincident", 4, 2, 0, 1),
    Sketcher.Constraint("Horizontal", 0),
    Sketcher.Constraint("Vertical", 1),
    Sketcher.Constraint("Vertical", 3),
    Sketcher.Constraint("Vertical", 5),
    Sketcher.Constraint("Coincident", 5, 1, 1, 2),
    Sketcher.Constraint("Horizontal", 4, 2, 5, 2),
    Sketcher.Constraint("DistanceX", 0, 2, 0, 1, Q("4 mm")),
    Sketcher.Constraint("Angle", 2, Q("-30 deg")),
    Sketcher.Constraint("Angle", 4, Q("-45 deg")),
    Sketcher.Constraint("DistanceX", -1, 1, 0, 2, Q("20 mm")),
    Sketcher.Constraint("DistanceY", 0, 2, -1, 1, Q("30 mm")),
    Sketcher.Constraint("DistanceY", 2, 2, -1, 1, Q("8 mm")),
    Sketcher.Constraint("DistanceY", 3, 2, 3, 1, Q("21.3235 mm")),
])
sketch14.setExpression("Constraints[11]", "Params.sketch14_width")
groove7 = body.newObject("PartDesign::Groove", "Groove006")
groove7.Profile = sketch14
groove7.ReferenceAxis = (sketch14, ["Axis0"])
groove7.setExpression("Angle", "Params.groove7_angle")

# Sketch on XY plane
sketch15 = body.newObject("Sketcher::SketchObject", "Sketch014")
sketch15.AttachmentSupport = (doc.getObject("XY_Plane"), [""])
sketch15.MapMode = "FlatFace"
sketch15.addGeometry(Part.Circle(Vector(23, 81.5, 0), Vector(0, 0, 1), 4.8), False)
sketch15.addConstraint([
    Sketcher.Constraint("Diameter", 0, Q("9.6 mm")),
    Sketcher.Constraint("DistanceX", -1, 1, 0, 3, Q("23 mm")),
    Sketcher.Constraint("DistanceY", -1, 1, 0, 3, Q("81.5 mm")),
])
sketch15.setExpression("Constraints[0]", "Params.sketch15_diameter")
pad2 = body.newObject("PartDesign::Pad", "Pad001")
pad2.Profile = sketch15
pad2.setExpression("Length", "Params.pad2_length")

# Sketch on YZ plane
sketch16 = body.newObject("Sketcher::SketchObject", "Sketch015")
sketch16.AttachmentSupport = (doc.getObject("YZ_Plane"), [""])
sketch16.MapMode = "FlatFace"
sketch16.AttachmentOffset = App.Placement(Vector(0, 0, 54.5), App.Rotation())
sketch16.addGeometry([
    Part.LineSegment(Vector(88.5, -2.81, 0), Vector(88.5, -5, 0)),  # 0
    Part.LineSegment(Vector(88.5, -5, 0), Vector(89.5, -5, 0)),  # 1
    Part.LineSegment(Vector(89.5, -5, 0), Vector(89.5, -2.5, 0)),  # 2
    Part.LineSegment(Vector(89.5, -2.5, 0), Vector(88.5, -2.5, 0)),  # 3
    Part.LineSegment(Vector(88.5, -2.5, 0), Vector(88.39, -2.61, 0)),  # 4
    Part.LineSegment(Vector(88.39, -2.61, 0), Vector(88.5, -2.81, 0)),  # 5
], False)
sketch16.addGeometry(Part.LineSegment(Vector(89.5, -5, 0), Vector(88.39, -5, 0)), True)  # axis
sketch16.addConstraint([
    Sketcher.Constraint("Coincident", 0, 2, 1, 1),
    Sketcher.Constraint("Coincident", 1, 2, 2, 1),
    Sketcher.Constraint("Coincident", 2, 2, 3, 1),
    Sketcher.Constraint("Coincident", 3, 2, 4, 1),
    Sketcher.Constraint("Coincident", 4, 2, 5, 1),
    Sketcher.Constraint("Coincident", 5, 2, 0, 1),
    Sketcher.Constraint("Vertical", 0),
    Sketcher.Constraint("Horizontal", 1),
    Sketcher.Constraint("Vertical", 2),
    Sketcher.Constraint("Horizontal", 3),
    Sketcher.Constraint("Horizontal", 6),
    Sketcher.Constraint("Coincident", 6, 1, 1, 2),
    Sketcher.Constraint("Vertical", 0, 2, 3, 2),
    Sketcher.Constraint("Vertical", 4, 2, 6, 2),
    Sketcher.Constraint("DistanceX", 1, 1, 1, 2, Q("1 mm")),
    Sketcher.Constraint("Angle", 4, Q("-135 deg")),
    Sketcher.Constraint("Angle", 5, Q("-60 deg")),
    Sketcher.Constraint("DistanceY", 2, 1, 2, 2, Q("2.5 mm")),
    Sketcher.Constraint("DistanceY", 0, 2, -1, 1, Q("5 mm")),
    Sketcher.Constraint("DistanceX", -1, 1, 0, 2, Q("88.5 mm")),
    Sketcher.Constraint("DistanceX", 6, 2, 6, 1, Q("1.112214 mm")),
])
sketch16.setExpression("Constraints[14]", "Params.sketch16_width")
sketch16.setExpression("Constraints[17]", "Params.sketch16_height")
groove8 = body.newObject("PartDesign::Groove", "Groove007")
groove8.Profile = sketch16
groove8.ReferenceAxis = (sketch16, ["Axis0"])
groove8.setExpression("Angle", "Params.groove8_angle")

# Sketch on XZ plane
sketch17 = body.newObject("Sketcher::SketchObject", "Sketch016")
sketch17.AttachmentSupport = (doc.getObject("XZ_Plane"), [""])
sketch17.MapMode = "FlatFace"
sketch17.AttachmentOffset = App.Placement(Vector(0, 0, -88.5), App.Rotation())
sketch17.addGeometry([
    Part.LineSegment(Vector(53.2, -5.7, 0), Vector(53.2, -4.3, 0)),  # 0
    Part.LineSegment(Vector(53.2, -4.3, 0), Vector(54.5, -3.6, 0)),  # 1
    Part.LineSegment(Vector(54.5, -3.6, 0), Vector(55.8, -4.3, 0)),  # 2
    Part.LineSegment(Vector(55.8, -4.3, 0), Vector(55.8, -5.7, 0)),  # 3
    Part.LineSegment(Vector(55.8, -5.7, 0), Vector(54.5, -6.4, 0)),  # 4
    Part.LineSegment(Vector(54.5, -6.4, 0), Vector(53.2, -5.7, 0)),  # 5
], False)
sketch17.addConstraint([
    Sketcher.Constraint("Coincident", 0, 2, 1, 1),
    Sketcher.Constraint("Coincident", 1, 2, 2, 1),
    Sketcher.Constraint("Coincident", 2, 2, 3, 1),
    Sketcher.Constraint("Coincident", 3, 2, 4, 1),
    Sketcher.Constraint("Coincident", 4, 2, 5, 1),
    Sketcher.Constraint("Coincident", 5, 2, 0, 1),
    Sketcher.Constraint("Vertical", 0),
    Sketcher.Constraint("Vertical", 3),
    Sketcher.Constraint("Parallel", 1, 4),
    Sketcher.Constraint("Parallel", 2, 5),
    Sketcher.Constraint("Horizontal", 0, 2, 2, 2),
    Sketcher.Constraint("Horizontal", 3, 2, 5, 2),
    Sketcher.Constraint("Vertical", 1, 2, 4, 2),
    Sketcher.Constraint("Angle", 1, Q("30 deg")),
    Sketcher.Constraint("DistanceX", -1, 1, 1, 2, Q("54.5 mm")),
    Sketcher.Constraint("DistanceX", 0, 2, 2, 2, Q("2.5 mm")),
    Sketcher.Constraint("DistanceY", 0, 1, 0, 2, Q("1.443376 mm")),
    Sketcher.Constraint("DistanceY", 0, 2, -1, 1, Q("4.278312 mm")),
])
pocket7 = body.newObject("PartDesign::Pocket", "Pocket006")
pocket7.Profile = sketch17
pocket7.setExpression("Length", "Params.pocket7_length")
pocket7.Reversed = True

doc.recompute()
